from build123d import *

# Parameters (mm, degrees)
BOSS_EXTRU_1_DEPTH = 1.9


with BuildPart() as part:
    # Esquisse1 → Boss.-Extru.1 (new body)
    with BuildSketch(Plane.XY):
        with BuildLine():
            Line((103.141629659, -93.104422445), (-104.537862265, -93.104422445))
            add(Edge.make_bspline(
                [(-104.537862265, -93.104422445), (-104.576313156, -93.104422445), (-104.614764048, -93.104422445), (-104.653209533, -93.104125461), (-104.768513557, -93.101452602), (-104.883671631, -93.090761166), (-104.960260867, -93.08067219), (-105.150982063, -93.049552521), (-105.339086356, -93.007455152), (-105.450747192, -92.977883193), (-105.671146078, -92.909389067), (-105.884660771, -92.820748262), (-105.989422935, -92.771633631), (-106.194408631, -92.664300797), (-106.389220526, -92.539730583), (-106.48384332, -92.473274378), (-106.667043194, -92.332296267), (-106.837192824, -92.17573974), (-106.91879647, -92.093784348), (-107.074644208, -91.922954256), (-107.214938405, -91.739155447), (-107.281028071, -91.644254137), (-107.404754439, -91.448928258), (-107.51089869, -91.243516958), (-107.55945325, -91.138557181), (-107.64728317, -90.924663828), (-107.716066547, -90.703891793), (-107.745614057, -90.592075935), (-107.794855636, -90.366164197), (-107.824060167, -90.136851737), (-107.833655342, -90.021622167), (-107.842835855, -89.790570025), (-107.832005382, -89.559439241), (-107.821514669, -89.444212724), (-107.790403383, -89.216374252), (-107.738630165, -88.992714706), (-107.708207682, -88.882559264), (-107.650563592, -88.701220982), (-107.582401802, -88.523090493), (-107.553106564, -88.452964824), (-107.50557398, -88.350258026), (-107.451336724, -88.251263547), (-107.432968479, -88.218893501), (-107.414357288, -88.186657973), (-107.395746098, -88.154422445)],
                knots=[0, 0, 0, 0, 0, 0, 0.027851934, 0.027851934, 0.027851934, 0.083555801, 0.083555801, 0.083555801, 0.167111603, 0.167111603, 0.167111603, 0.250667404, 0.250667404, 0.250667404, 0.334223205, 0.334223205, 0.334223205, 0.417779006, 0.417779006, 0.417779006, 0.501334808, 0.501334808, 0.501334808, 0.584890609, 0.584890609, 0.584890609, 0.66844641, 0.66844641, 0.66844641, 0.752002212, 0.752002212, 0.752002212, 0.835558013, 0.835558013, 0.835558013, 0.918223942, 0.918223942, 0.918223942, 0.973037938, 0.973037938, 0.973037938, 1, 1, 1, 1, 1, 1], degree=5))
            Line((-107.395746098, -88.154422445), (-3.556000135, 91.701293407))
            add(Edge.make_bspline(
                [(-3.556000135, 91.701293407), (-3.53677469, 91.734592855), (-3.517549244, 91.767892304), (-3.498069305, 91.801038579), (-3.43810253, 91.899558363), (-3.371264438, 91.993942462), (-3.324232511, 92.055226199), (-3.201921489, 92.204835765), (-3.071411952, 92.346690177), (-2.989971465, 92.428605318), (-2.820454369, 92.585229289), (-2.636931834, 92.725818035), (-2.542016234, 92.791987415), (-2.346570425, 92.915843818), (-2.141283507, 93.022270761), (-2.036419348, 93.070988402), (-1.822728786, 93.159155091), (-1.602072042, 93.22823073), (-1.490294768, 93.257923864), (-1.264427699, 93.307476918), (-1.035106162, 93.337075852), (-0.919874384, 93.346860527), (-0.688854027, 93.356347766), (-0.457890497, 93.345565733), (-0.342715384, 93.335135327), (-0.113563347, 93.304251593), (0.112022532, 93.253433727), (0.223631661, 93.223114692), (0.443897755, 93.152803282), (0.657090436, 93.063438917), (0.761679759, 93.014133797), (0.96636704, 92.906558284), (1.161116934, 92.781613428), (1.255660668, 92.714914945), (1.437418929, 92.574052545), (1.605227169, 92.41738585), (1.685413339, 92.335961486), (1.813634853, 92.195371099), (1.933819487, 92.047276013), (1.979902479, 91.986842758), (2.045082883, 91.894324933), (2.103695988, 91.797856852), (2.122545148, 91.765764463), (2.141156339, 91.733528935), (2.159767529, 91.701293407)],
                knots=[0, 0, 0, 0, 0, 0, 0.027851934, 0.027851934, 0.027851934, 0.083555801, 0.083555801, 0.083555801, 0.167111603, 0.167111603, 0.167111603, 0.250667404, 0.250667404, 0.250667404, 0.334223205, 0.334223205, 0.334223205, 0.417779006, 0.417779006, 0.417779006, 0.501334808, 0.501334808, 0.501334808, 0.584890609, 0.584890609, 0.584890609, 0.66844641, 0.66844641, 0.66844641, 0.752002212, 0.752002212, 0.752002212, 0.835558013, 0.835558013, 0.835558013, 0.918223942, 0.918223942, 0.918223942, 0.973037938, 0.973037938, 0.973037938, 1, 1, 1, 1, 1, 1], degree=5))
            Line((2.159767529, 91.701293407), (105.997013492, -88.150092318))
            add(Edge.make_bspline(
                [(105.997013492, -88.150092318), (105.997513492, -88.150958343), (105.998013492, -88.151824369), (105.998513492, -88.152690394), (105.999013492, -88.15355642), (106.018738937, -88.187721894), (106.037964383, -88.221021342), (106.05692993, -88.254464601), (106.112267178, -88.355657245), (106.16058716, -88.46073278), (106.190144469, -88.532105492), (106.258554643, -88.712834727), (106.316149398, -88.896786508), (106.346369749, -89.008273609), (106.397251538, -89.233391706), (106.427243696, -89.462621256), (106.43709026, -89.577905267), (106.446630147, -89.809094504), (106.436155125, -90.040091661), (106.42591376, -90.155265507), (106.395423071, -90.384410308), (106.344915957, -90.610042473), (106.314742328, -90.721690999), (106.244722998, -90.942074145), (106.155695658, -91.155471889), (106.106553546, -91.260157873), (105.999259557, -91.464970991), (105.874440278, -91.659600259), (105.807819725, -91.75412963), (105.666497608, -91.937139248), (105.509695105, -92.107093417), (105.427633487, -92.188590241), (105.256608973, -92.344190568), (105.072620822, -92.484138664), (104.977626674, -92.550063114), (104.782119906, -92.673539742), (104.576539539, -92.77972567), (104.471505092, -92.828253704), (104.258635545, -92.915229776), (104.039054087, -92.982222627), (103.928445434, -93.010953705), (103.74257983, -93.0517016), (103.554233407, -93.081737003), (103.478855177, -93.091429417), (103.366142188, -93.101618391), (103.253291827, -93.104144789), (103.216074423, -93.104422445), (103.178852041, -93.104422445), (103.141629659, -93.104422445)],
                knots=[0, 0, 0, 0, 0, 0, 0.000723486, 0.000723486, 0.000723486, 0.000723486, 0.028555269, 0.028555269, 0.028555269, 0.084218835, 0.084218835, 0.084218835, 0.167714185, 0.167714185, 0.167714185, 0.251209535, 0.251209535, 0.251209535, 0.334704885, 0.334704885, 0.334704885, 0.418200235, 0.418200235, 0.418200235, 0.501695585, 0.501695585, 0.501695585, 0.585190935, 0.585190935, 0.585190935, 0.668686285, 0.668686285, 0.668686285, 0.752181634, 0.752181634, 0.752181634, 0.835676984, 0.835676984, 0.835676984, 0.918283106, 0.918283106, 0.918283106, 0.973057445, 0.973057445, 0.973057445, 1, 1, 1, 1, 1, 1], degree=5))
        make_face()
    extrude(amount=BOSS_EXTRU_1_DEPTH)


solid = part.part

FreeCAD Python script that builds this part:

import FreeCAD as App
import Part
import Sketcher
from FreeCAD import Vector

doc = App.newDocument("Part")
params = doc.addObject("Spreadsheet::Sheet", "Params")
for row, (alias, value) in enumerate([
    ("pad1_length", "1.9 mm"),
], start=1):
    params.set(f"A{row}", alias)
    params.set(f"B{row}", "=" + value)
    params.setAlias(f"B{row}", alias)

body = doc.addObject("PartDesign::Body", "Body")

# Sketch on XY plane
sketch1 = body.newObject("Sketcher::SketchObject", "Sketch")
sketch1.AttachmentSupport = (doc.getObject("XY_Plane"), [""])
sketch1.MapMode = "FlatFace"
sketch1.addGeometry([
    Part.LineSegment(Vector(-104.537862, -93.104422, 0), Vector(103.14163, -93.104422, 0)),  # 0
    Part.BSplineCurve([Vector(105.997013, -88.150092, 0), Vector(105.997513, -88.150958, 0), Vector(105.998013, -88.151824, 0), Vector(105.998513, -88.15269, 0), Vector(105.999013, -88.153556, 0), Vector(106.018739, -88.187722, 0), Vector(106.037964, -88.221021, 0), Vector(106.05693, -88.254465, 0), Vector(106.112267, -88.355657, 0), Vector(106.160587, -88.460733, 0), Vector(106.190144, -88.532105, 0), Vector(106.258555, -88.712835, 0), Vector(106.316149, -88.896787, 0), Vector(106.34637, -89.008274, 0), Vector(106.397252, -89.233392, 0), Vector(106.427244, -89.462621, 0), Vector(106.43709, -89.577905, 0), Vector(106.44663, -89.809095, 0), Vector(106.436155, -90.040092, 0), Vector(106.425914, -90.155266, 0), Vector(106.395423, -90.38441, 0), Vector(106.344916, -90.610042, 0), Vector(106.314742, -90.721691, 0), Vector(106.244723, -90.942074, 0), Vector(106.155696, -91.155472, 0), Vector(106.106554, -91.260158, 0), Vector(105.99926, -91.464971, 0), Vector(105.87444, -91.6596, 0), Vector(105.80782, -91.75413, 0), Vector(105.666498, -91.937139, 0), Vector(105.509695, -92.107093, 0), Vector(105.427633, -92.18859, 0), Vector(105.256609, -92.344191, 0), Vector(105.072621, -92.484139, 0), Vector(104.977627, -92.550063, 0), Vector(104.78212, -92.67354, 0), Vector(104.57654, -92.779726, 0), Vector(104.471505, -92.828254, 0), Vector(104.258636, -92.91523, 0), Vector(104.039054, -92.982223, 0), Vector(103.928445, -93.010954, 0), Vector(103.74258, -93.051702, 0), Vector(103.554233, -93.081737, 0), Vector(103.478855, -93.091429, 0), Vector(103.366142, -93.101618, 0), Vector(103.253292, -93.104145, 0), Vector(103.216074, -93.104422, 0), Vector(103.178852, -93.104422, 0), Vector(103.14163, -93.104422, 0)], [6, 4, 3, 3, 3, 3, 3, 3, 3, 3, 3, 3, 3, 3, 3, 6], [0, 0.000723486, 0.028555269, 0.084218835, 0.167714185, 0.251209535, 0.334704885, 0.418200235, 0.501695585, 0.585190935, 0.668686285, 0.752181634, 0.835676984, 0.918283106, 0.973057445, 1], False, 5, [1, 1, 1, 1, 1, 1, 1, 1, 1, 1, 1, 1, 1, 1, 1, 1, 1, 1, 1, 1, 1, 1, 1, 1, 1, 1, 1, 1, 1, 1, 1, 1, 1, 1, 1, 1, 1, 1, 1, 1, 1, 1, 1, 1, 1, 1, 1, 1, 1], False),  # 1
    Part.LineSegment(Vector(105.997013, -88.150092, 0), Vector(2.159768, 91.701293, 0)),  # 2
    Part.BSplineCurve([Vector(-3.556, 91.701293, 0), Vector(-3.536775, 91.734593, 0), Vector(-3.517549, 91.767892, 0), Vector(-3.498069, 91.801039, 0), Vector(-3.438103, 91.899558, 0), Vector(-3.371264, 91.993942, 0), Vector(-3.324233, 92.055226, 0), Vector(-3.201921, 92.204836, 0), Vector(-3.071412, 92.34669, 0), Vector(-2.989971, 92.428605, 0), Vector(-2.820454, 92.585229, 0), Vector(-2.636932, 92.725818, 0), Vector(-2.542016, 92.791987, 0), Vector(-2.34657, 92.915844, 0), Vector(-2.141284, 93.022271, 0), Vector(-2.036419, 93.070988, 0), Vector(-1.822729, 93.159155, 0), Vector(-1.602072, 93.228231, 0), Vector(-1.490295, 93.257924, 0), Vector(-1.264428, 93.307477, 0), Vector(-1.035106, 93.337076, 0), Vector(-0.919874, 93.346861, 0), Vector(-0.688854, 93.356348, 0), Vector(-0.45789, 93.345566, 0), Vector(-0.342715, 93.335135, 0), Vector(-0.113563, 93.304252, 0), Vector(0.112023, 93.253434, 0), Vector(0.223632, 93.223115, 0), Vector(0.443898, 93.152803, 0), Vector(0.65709, 93.063439, 0), Vector(0.76168, 93.014134, 0), Vector(0.966367, 92.906558, 0), Vector(1.161117, 92.781613, 0), Vector(1.255661, 92.714915, 0), Vector(1.437419, 92.574053, 0), Vector(1.605227, 92.417386, 0), Vector(1.685413, 92.335961, 0), Vector(1.813635, 92.195371, 0), Vector(1.933819, 92.047276, 0), Vector(1.979902, 91.986843, 0), Vector(2.045083, 91.894325, 0), Vector(2.103696, 91.797857, 0), Vector(2.122545, 91.765764, 0), Vector(2.141156, 91.733529, 0), Vector(2.159768, 91.701293, 0)], [6, 3, 3, 3, 3, 3, 3, 3, 3, 3, 3, 3, 3, 3, 6], [0, 0.027851934, 0.083555801, 0.167111603, 0.250667404, 0.334223205, 0.417779006, 0.501334808, 0.584890609, 0.66844641, 0.752002212, 0.835558013, 0.918223942, 0.973037938, 1], False, 5, [1, 1, 1, 1, 1, 1, 1, 1, 1, 1, 1, 1, 1, 1, 1, 1, 1, 1, 1, 1, 1, 1, 1, 1, 1, 1, 1, 1, 1, 1, 1, 1, 1, 1, 1, 1, 1, 1, 1, 1, 1, 1, 1, 1, 1], False),  # 3
    Part.LineSegment(Vector(-3.556, 91.701293, 0), Vector(-107.395746, -88.154422, 0)),  # 4
    Part.BSplineCurve([Vector(-104.537862, -93.104422, 0), Vector(-104.576313, -93.104422, 0), Vector(-104.614764, -93.104422, 0), Vector(-104.65321, -93.104125, 0), Vector(-104.768514, -93.101453, 0), Vector(-104.883672, -93.090761, 0), Vector(-104.960261, -93.080672, 0), Vector(-105.150982, -93.049553, 0), Vector(-105.339086, -93.007455, 0), Vector(-105.450747, -92.977883, 0), Vector(-105.671146, -92.909389, 0), Vector(-105.884661, -92.820748, 0), Vector(-105.989423, -92.771634, 0), Vector(-106.194409, -92.664301, 0), Vector(-106.389221, -92.539731, 0), Vector(-106.483843, -92.473274, 0), Vector(-106.667043, -92.332296, 0), Vector(-106.837193, -92.17574, 0), Vector(-106.918796, -92.093784, 0), Vector(-107.074644, -91.922954, 0), Vector(-107.214938, -91.739155, 0), Vector(-107.281028, -91.644254, 0), Vector(-107.404754, -91.448928, 0), Vector(-107.510899, -91.243517, 0), Vector(-107.559453, -91.138557, 0), Vector(-107.647283, -90.924664, 0), Vector(-107.716067, -90.703892, 0), Vector(-107.745614, -90.592076, 0), Vector(-107.794856, -90.366164, 0), Vector(-107.82406, -90.136852, 0), Vector(-107.833655, -90.021622, 0), Vector(-107.842836, -89.79057, 0), Vector(-107.832005, -89.559439, 0), Vector(-107.821515, -89.444213, 0), Vector(-107.790403, -89.216374, 0), Vector(-107.73863, -88.992715, 0), Vector(-107.708208, -88.882559, 0), Vector(-107.650564, -88.701221, 0), Vector(-107.582402, -88.52309, 0), Vector(-107.553107, -88.452965, 0), Vector(-107.505574, -88.350258, 0), Vector(-107.451337, -88.251264, 0), Vector(-107.432968, -88.218894, 0), Vector(-107.414357, -88.186658, 0), Vector(-107.395746, -88.154422, 0)], [6, 3, 3, 3, 3, 3, 3, 3, 3, 3, 3, 3, 3, 3, 6], [0, 0.027851934, 0.083555801, 0.167111603, 0.250667404, 0.334223205, 0.417779006, 0.501334808, 0.584890609, 0.66844641, 0.752002212, 0.835558013, 0.918223942, 0.973037938, 1], False, 5, [1, 1, 1, 1, 1, 1, 1, 1, 1, 1, 1, 1, 1, 1, 1, 1, 1, 1, 1, 1, 1, 1, 1, 1, 1, 1, 1, 1, 1, 1, 1, 1, 1, 1, 1, 1, 1, 1, 1, 1, 1, 1, 1, 1, 1], False),  # 5
], False)
sketch1.addConstraint([
    Sketcher.Constraint("Block", 1),
    Sketcher.Constraint("Block", 3),
    Sketcher.Constraint("Block", 5),
    Sketcher.Constraint("Coincident", 0, 2, 1, 2),
    Sketcher.Constraint("Coincident", 1, 1, 2, 1),
    Sketcher.Constraint("Coincident", 2, 2, 3, 2),
    Sketcher.Constraint("Coincident", 3, 1, 4, 1),
    Sketcher.Constraint("Coincident", 4, 2, 5, 2),
    Sketcher.Constraint("Coincident", 5, 1, 0, 1),
])
pad1 = body.newObject("PartDesign::Pad", "Pad")
pad1.Profile = sketch1
pad1.setExpression("Length", "Params.pad1_length")

doc.recompute()
